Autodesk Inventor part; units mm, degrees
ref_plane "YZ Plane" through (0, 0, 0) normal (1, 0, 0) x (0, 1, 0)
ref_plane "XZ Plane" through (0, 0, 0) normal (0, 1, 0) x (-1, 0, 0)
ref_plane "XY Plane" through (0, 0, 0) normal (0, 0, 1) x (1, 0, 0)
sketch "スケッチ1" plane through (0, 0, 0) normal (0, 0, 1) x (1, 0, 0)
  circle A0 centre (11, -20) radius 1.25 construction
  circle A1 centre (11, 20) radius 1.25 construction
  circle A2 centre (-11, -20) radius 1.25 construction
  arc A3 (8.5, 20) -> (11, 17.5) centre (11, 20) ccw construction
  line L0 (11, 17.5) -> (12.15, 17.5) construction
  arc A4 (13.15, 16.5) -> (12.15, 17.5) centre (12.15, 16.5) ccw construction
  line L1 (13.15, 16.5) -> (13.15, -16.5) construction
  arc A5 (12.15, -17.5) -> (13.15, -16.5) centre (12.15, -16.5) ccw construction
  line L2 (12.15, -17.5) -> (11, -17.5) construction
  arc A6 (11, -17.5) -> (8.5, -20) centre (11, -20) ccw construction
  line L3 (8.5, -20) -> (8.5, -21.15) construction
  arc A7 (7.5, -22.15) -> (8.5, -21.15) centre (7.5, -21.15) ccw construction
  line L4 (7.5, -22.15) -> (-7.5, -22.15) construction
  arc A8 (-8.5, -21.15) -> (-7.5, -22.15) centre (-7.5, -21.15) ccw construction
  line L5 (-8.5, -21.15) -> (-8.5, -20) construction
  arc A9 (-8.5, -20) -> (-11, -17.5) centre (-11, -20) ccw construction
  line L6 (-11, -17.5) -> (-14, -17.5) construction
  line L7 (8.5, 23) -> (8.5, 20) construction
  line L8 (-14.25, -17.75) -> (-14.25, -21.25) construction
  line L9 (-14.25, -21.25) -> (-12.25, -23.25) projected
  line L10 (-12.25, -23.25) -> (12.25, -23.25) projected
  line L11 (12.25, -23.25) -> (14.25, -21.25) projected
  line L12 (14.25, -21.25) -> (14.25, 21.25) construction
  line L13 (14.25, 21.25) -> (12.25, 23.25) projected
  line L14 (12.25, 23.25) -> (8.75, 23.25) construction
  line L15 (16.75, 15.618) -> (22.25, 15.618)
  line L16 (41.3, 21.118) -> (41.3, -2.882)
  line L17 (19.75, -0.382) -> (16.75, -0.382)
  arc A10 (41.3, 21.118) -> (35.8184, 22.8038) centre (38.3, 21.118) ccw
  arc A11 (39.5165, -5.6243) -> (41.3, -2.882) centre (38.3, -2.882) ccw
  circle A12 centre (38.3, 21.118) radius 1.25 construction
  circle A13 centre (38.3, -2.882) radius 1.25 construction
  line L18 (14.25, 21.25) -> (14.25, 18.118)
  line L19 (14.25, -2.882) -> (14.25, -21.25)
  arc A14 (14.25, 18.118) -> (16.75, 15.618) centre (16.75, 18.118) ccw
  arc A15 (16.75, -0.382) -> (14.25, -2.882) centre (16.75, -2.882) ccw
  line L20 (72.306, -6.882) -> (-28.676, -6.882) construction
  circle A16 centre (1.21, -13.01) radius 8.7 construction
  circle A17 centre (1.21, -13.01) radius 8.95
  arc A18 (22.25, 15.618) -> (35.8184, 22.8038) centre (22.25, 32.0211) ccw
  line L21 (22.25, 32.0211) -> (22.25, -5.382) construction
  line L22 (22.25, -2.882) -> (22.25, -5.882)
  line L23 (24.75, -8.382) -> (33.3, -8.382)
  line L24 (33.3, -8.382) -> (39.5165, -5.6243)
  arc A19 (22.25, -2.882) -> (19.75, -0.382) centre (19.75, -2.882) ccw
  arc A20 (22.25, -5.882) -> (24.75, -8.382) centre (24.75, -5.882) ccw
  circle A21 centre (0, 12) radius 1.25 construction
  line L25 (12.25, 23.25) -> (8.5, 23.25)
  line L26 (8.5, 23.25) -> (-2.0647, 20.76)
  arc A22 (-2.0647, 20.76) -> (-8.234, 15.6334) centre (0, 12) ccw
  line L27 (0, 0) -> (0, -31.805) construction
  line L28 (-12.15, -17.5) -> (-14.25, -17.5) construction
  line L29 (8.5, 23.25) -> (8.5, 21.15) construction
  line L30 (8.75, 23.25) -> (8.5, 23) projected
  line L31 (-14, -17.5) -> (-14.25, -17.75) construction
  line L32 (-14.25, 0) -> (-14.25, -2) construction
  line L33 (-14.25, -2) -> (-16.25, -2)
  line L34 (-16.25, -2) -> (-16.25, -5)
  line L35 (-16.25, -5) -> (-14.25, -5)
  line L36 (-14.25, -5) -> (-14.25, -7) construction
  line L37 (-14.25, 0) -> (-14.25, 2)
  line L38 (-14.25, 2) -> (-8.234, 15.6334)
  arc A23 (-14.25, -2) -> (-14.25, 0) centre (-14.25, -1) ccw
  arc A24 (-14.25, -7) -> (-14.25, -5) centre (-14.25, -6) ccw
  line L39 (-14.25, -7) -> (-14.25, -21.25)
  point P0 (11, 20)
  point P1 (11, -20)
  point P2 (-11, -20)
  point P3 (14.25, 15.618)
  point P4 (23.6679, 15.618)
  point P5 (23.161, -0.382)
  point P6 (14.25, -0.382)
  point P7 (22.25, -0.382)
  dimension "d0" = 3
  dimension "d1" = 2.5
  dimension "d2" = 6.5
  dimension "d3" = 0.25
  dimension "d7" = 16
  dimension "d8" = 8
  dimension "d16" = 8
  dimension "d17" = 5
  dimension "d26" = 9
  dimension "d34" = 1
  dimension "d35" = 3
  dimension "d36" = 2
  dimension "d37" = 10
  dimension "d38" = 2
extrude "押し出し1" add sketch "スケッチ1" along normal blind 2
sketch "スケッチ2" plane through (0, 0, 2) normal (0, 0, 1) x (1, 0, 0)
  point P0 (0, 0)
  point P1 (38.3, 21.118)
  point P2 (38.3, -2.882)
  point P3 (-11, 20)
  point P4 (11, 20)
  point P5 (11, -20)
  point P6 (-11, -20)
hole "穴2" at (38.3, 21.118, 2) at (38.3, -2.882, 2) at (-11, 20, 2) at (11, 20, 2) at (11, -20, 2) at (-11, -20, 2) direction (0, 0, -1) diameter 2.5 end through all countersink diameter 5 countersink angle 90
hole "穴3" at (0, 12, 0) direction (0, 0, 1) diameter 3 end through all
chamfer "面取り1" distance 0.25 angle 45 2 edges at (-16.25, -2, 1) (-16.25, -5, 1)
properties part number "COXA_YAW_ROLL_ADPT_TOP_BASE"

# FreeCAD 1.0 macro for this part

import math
import FreeCAD as App
import Part
import Sketcher
from FreeCAD import Vector


def edges_at(feature, points):
    """Names of the edges that pass closest to the given points."""
    edges = feature.Shape.Edges
    near = lambda p: min(range(len(edges)), key=lambda i: edges[i].distToShape(Part.Vertex(*p))[0])
    return sorted({f"Edge{near(p) + 1}" for p in points})

doc = App.newDocument("Part")
body = doc.addObject("PartDesign::Body", "Body")

# Sketch on XY plane
sketch1 = body.newObject("Sketcher::SketchObject", "Sketch")
sketch1.AttachmentSupport = (doc.getObject("XY_Plane"), [""])
sketch1.MapMode = "FlatFace"
sketch1.addGeometry([
    Part.LineSegment(Vector(-14.2, -7, 0), Vector(-14.2, -21.2, 0)),  # 0
    Part.LineSegment(Vector(-14.2, -21.2, 0), Vector(-12.2, -23.2, 0)),  # 1
    Part.LineSegment(Vector(-12.2, -23.2, 0), Vector(12.2, -23.2, 0)),  # 2
    Part.LineSegment(Vector(12.2, -23.2, 0), Vector(14.2, -21.2, 0)),  # 3
    Part.LineSegment(Vector(14.2, -21.2, 0), Vector(14.2, -2.9, 0)),  # 4
    Part.ArcOfCircle(Part.Circle(Vector(16.8, -2.9, 0), Vector(0, 0, 1), 2.5), math.radians(90), math.radians(180)),  # 5
    Part.LineSegment(Vector(16.8, -0.4, 0), Vector(19.8, -0.4, 0)),  # 6
    Part.ArcOfCircle(Part.Circle(Vector(19.8, -2.9, 0), Vector(0, 0, 1), 2.5), math.radians(0), math.radians(90)),  # 7
    Part.LineSegment(Vector(22.2, -2.9, 0), Vector(22.2, -5.9, 0)),  # 8
    Part.ArcOfCircle(Part.Circle(Vector(24.8, -5.9, 0), Vector(0, 0, 1), 2.5), math.radians(180), math.radians(270)),  # 9
    Part.LineSegment(Vector(24.8, -8.4, 0), Vector(33.3, -8.4, 0)),  # 10
    Part.LineSegment(Vector(33.3, -8.4, 0), Vector(39.5, -5.6, 0)),  # 11
    Part.ArcOfCircle(Part.Circle(Vector(38.3, -2.9, 0), Vector(0, 0, 1), 3), math.radians(-66), math.radians(0)),  # 12
    Part.LineSegment(Vector(41.3, -2.9, 0), Vector(41.3, 21.1, 0)),  # 13
    Part.ArcOfCircle(Part.Circle(Vector(38.3, 21.1, 0), Vector(0, 0, 1), 3), math.radians(0), math.radians(146)),  # 14
    Part.ArcOfCircle(Part.Circle(Vector(22.2, 32, 0), Vector(0, 0, 1), 16.4), math.radians(-90), math.radians(-34)),  # 15
    Part.LineSegment(Vector(22.2, 15.6, 0), Vector(16.8, 15.6, 0)),  # 16
    Part.ArcOfCircle(Part.Circle(Vector(16.8, 18.1, 0), Vector(0, 0, 1), 2.5), math.radians(180), math.radians(270)),  # 17
    Part.LineSegment(Vector(14.2, 18.1, 0), Vector(14.2, 21.2, 0)),  # 18
    Part.LineSegment(Vector(14.2, 21.2, 0), Vector(12.2, 23.2, 0)),  # 19
    Part.LineSegment(Vector(12.2, 23.2, 0), Vector(8.5, 23.2, 0)),  # 20
    Part.LineSegment(Vector(8.5, 23.2, 0), Vector(-2.1, 20.8, 0)),  # 21
    Part.ArcOfCircle(Part.Circle(Vector(0, 12, 0), Vector(0, 0, 1), 9), math.radians(103), math.radians(156)),  # 22
    Part.LineSegment(Vector(-8.2, 15.6, 0), Vector(-14.2, 2, 0)),  # 23
    Part.LineSegment(Vector(-14.2, 2, 0), Vector(-14.2, 0, 0)),  # 24
    Part.ArcOfCircle(Part.Circle(Vector(-14.2, -1, 0), Vector(0, 0, 1), 1), math.radians(-90), math.radians(90)),  # 25
    Part.LineSegment(Vector(-14.2, -2, 0), Vector(-16.2, -2, 0)),  # 26
    Part.LineSegment(Vector(-16.2, -2, 0), Vector(-16.2, -5, 0)),  # 27
    Part.LineSegment(Vector(-16.2, -5, 0), Vector(-14.2, -5, 0)),  # 28
    Part.ArcOfCircle(Part.Circle(Vector(-14.2, -6, 0), Vector(0, 0, 1), 1), math.radians(-90), math.radians(90)),  # 29
    Part.Circle(Vector(1.2, -13, 0), Vector(0, 0, 1), 8.9),  # 30
], False)
sketch1.addConstraint([
    Sketcher.Constraint("Coincident", 0, 2, 1, 1),
    Sketcher.Constraint("Coincident", 1, 2, 2, 1),
    Sketcher.Constraint("Coincident", 2, 2, 3, 1),
    Sketcher.Constraint("Coincident", 3, 2, 4, 1),
    Sketcher.Constraint("Tangent", 4, 2, 5, 2),
    Sketcher.Constraint("Tangent", 5, 1, 6, 1),
    Sketcher.Constraint("Tangent", 6, 2, 7, 2),
    Sketcher.Constraint("Tangent", 7, 1, 8, 1),
    Sketcher.Constraint("Tangent", 8, 2, 9, 1),
    Sketcher.Constraint("Tangent", 9, 2, 10, 1),
    Sketcher.Constraint("Coincident", 10, 2, 11, 1),
    Sketcher.Constraint("Tangent", 11, 2, 12, 1),
    Sketcher.Constraint("Tangent", 12, 2, 13, 1),
    Sketcher.Constraint("Tangent", 13, 2, 14, 1),
    Sketcher.Constraint("Tangent", 14, 2, 15, 2),
    Sketcher.Constraint("Tangent", 15, 1, 16, 1),
    Sketcher.Constraint("Tangent", 16, 2, 17, 2),
    Sketcher.Constraint("Tangent", 17, 1, 18, 1),
    Sketcher.Constraint("Coincident", 18, 2, 19, 1),
    Sketcher.Constraint("Coincident", 19, 2, 20, 1),
    Sketcher.Constraint("Coincident", 20, 2, 21, 1),
    Sketcher.Constraint("Tangent", 21, 2, 22, 1),
    Sketcher.Constraint("Tangent", 22, 2, 23, 1),
    Sketcher.Constraint("Coincident", 23, 2, 24, 1),
    Sketcher.Constraint("Coincident", 24, 2, 25, 2),
    Sketcher.Constraint("Tangent", 25, 1, 26, 1),
    Sketcher.Constraint("Coincident", 26, 2, 27, 1),
    Sketcher.Constraint("Coincident", 27, 2, 28, 1),
    Sketcher.Constraint("Tangent", 28, 2, 29, 2),
    Sketcher.Constraint("Coincident", 29, 1, 0, 1),
    Sketcher.Constraint("Vertical", 0),
    Sketcher.Constraint("Horizontal", 2),
    Sketcher.Constraint("Vertical", 4),
    Sketcher.Constraint("Horizontal", 6),
    Sketcher.Constraint("Vertical", 8),
    Sketcher.Constraint("Horizontal", 10),
    Sketcher.Constraint("Vertical", 13),
    Sketcher.Constraint("Horizontal", 16),
    Sketcher.Constraint("Vertical", 18),
    Sketcher.Constraint("Horizontal", 20),
    Sketcher.Constraint("Vertical", 24),
    Sketcher.Constraint("Horizontal", 26),
    Sketcher.Constraint("Vertical", 27),
    Sketcher.Constraint("Horizontal", 28),
    Sketcher.Constraint("Equal", 5, 7),
    Sketcher.Constraint("Equal", 7, 9),
    Sketcher.Constraint("Equal", 12, 14),
    Sketcher.Constraint("Equal", 9, 17),
    Sketcher.Constraint("Equal", 25, 29),
    Sketcher.Constraint("Symmetric", 0, 2, 18, 2, -1, 1),
    Sketcher.Constraint("Symmetric", 1, 2, 19, 2, -1, 1),
    Sketcher.Constraint("Symmetric", 0, 2, 3, 2, -2),
    Sketcher.Constraint("Symmetric", 23, 2, 25, 1, -1),
    Sketcher.Constraint("PointOnObject", 22, 3, -2),
    Sketcher.Constraint("PointOnObject", 24, 2, -1),
    Sketcher.Constraint("Perpendicular", 1, 3),
    Sketcher.Constraint("Horizontal", 7, 3, 12, 3),
    Sketcher.Constraint("Vertical", 25, 3, 29, 3),
    Sketcher.Constraint("Vertical", 29, 3, 0, 2),
    Sketcher.Constraint("Vertical", 15, 3, 7, 1),
    Sketcher.Constraint("Vertical", 2, 2, 19, 2),
    Sketcher.Constraint("Equal", 6, 8),
    Sketcher.Constraint("Equal", 28, 24),
    Sketcher.Constraint("Equal", 8, 27),
    Sketcher.Constraint("Radius", 12, 3.0),
    Sketcher.Constraint("Radius", 22, 9.0),
    Sketcher.Constraint("Radius", 25, 1.0),
    Sketcher.Constraint("Radius", 5, 2.5),
    Sketcher.Constraint("DistanceX", 6, 1, 6, 2, 3.0),
    Sketcher.Constraint("DistanceY", 17, 3, 14, 3, 3.0),
    Sketcher.Constraint("DistanceX", 0, 2, 1, 2, 2.0),
    Sketcher.Constraint("DistanceX", 10, 2, 12, 3, 5.0),
    Sketcher.Constraint("DistanceY", 6, 2, 15, 1, 16.0),
    Sketcher.Constraint("DistanceY", 23, 2, 22, 3, 10.0),
    Sketcher.Constraint("Diameter", 30, 17.9),
    Sketcher.Constraint("DistanceX", 2, 1, 2, 2, 24.5),
    Sketcher.Constraint("Radius", 15, 16.403),
    Sketcher.Constraint("DistanceX", 20, 2, 20, 1, 3.75),
    Sketcher.Constraint("DistanceY", 0, 2, 0, 1, 14.25),
    Sketcher.Constraint("DistanceY", 4, 1, 4, 2, 18.368),
    Sketcher.Constraint("DistanceX", -1, 1, 30, 3, 1.21),
    Sketcher.Constraint("DistanceY", 30, 3, -1, 1, 13.01),
])
pad1 = body.newObject("PartDesign::Pad", "Pad")
pad1.Profile = sketch1
pad1.Length = 2

# Sketch on XY plane
sketch2 = body.newObject("Sketcher::SketchObject", "Sketch001")
sketch2.AttachmentSupport = (doc.getObject("XY_Plane"), [""])
sketch2.MapMode = "FlatFace"
sketch2.AttachmentOffset = App.Placement(Vector(0, 0, 2), App.Rotation())
sketch2.addGeometry([
    Part.Circle(Vector(38.3, 21.1, 0), Vector(0, 0, 1), 1.2),  # 0
    Part.Circle(Vector(38.3, -2.9, 0), Vector(0, 0, 1), 1.2),  # 1
    Part.Circle(Vector(-11, 20, 0), Vector(0, 0, 1), 1.2),  # 2
    Part.Circle(Vector(11, 20, 0), Vector(0, 0, 1), 1.2),  # 3
    Part.Circle(Vector(11, -20, 0), Vector(0, 0, 1), 1.2),  # 4
    Part.Circle(Vector(-11, -20, 0), Vector(0, 0, 1), 1.2),  # 5
], False)
sketch2.addConstraint([
    Sketcher.Constraint("Equal", 0, 1),
    Sketcher.Constraint("Equal", 1, 2),
    Sketcher.Constraint("Equal", 2, 3),
    Sketcher.Constraint("Equal", 3, 4),
    Sketcher.Constraint("Equal", 4, 5),
    Sketcher.Constraint("Symmetric", 2, 3, 4, 3, -1, 1),
    Sketcher.Constraint("Symmetric", 3, 3, 5, 3, -1, 1),
    Sketcher.Constraint("Symmetric", 2, 3, 3, 3, -2),
    Sketcher.Constraint("Vertical", 0, 3, 1, 3),
    Sketcher.Constraint("Diameter", 0, 2.5),
    Sketcher.Constraint("DistanceX", 2, 3, -1, 1, 11.0),
    Sketcher.Constraint("DistanceY", -1, 1, 2, 3, 20.0),
    Sketcher.Constraint("DistanceY", 1, 3, 0, 3, 24.0),
    Sketcher.Constraint("DistanceX", -1, 1, 0, 3, 38.3),
    Sketcher.Constraint("DistanceY", -1, 1, 0, 3, 21.118),
])
doc.recompute()
hole = body.newObject("PartDesign::Hole", "Hole")
hole.Profile = sketch2
hole.ThreadType = "None"
hole.Diameter = 2.5
hole.DepthType = "ThroughAll"
hole.HoleCutType = "Countersink"
hole.HoleCutDiameter = 5
hole.HoleCutCountersinkAngle = 90

# Sketch on XY plane
sketch3 = body.newObject("Sketcher::SketchObject", "Sketch002")
sketch3.AttachmentSupport = (doc.getObject("XY_Plane"), [""])
sketch3.MapMode = "FlatFace"
sketch3.addGeometry(Part.Circle(Vector(0, 12, 0), Vector(0, 0, 1), 1.5), False)
sketch3.addConstraint([
    Sketcher.Constraint("PointOnObject", 0, 3, -2),
    Sketcher.Constraint("Diameter", 0, 3.0),
    Sketcher.Constraint("DistanceY", -1, 1, 0, 3, 12.0),
])
doc.recompute()
hole2 = body.newObject("PartDesign::Hole", "Hole001")
hole2.Profile = sketch3
hole2.ThreadType = "None"
hole2.Diameter = 3
hole2.DepthType = "ThroughAll"
hole2.Reversed = True
doc.recompute()

chamfer = body.newObject("PartDesign::Chamfer", "Chamfer")
chamfer.Base = (hole2, edges_at(hole2, [(-16.25, -2, 1), (-16.25, -5, 1)]))
chamfer.Size = 0.25

doc.recompute()
